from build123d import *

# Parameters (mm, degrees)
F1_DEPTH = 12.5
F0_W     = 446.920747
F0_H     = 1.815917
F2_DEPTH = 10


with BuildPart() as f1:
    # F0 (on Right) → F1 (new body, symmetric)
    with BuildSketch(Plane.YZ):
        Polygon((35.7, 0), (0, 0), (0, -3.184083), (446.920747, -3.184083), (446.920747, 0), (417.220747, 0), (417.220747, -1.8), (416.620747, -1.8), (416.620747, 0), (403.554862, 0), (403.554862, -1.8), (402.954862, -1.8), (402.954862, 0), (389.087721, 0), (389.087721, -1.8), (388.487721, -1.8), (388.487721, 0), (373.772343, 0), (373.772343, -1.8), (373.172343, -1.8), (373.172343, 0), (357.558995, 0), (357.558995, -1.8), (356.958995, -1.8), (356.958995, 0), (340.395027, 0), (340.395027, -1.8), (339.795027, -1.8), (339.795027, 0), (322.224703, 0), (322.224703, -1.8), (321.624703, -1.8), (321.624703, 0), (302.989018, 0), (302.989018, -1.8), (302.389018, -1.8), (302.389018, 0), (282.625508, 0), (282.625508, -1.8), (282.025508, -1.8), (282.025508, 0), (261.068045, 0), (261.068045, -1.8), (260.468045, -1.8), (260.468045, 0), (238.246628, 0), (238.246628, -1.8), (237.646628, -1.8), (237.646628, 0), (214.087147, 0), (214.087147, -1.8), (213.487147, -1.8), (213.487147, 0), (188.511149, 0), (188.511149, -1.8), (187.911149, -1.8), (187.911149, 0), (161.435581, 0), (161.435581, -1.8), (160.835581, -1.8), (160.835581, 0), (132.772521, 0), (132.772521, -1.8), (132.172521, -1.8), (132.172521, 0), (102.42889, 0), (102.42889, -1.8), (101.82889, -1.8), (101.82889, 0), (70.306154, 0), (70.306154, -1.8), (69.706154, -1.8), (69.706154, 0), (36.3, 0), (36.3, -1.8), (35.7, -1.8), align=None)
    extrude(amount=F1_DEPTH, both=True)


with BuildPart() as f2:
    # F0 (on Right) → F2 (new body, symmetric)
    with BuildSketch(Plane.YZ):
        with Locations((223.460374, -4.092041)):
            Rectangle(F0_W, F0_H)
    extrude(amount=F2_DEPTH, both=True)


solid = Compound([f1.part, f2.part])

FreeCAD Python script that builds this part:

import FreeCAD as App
import Part
import Sketcher

V = App.Vector
Q = App.Units.Quantity


def add_polygon(sketch, points):
    """Adds a closed chain of lines whose ends are joined by coincident constraints."""
    first, n = sketch.GeometryCount, len(points)
    for a, b in zip(points, points[1:] + points[:1]):
        sketch.addGeometry(Part.LineSegment(App.Vector(*a, 0), App.Vector(*b, 0)), False)
    for i in range(n):
        sketch.addConstraint(Sketcher.Constraint("Coincident", first + i, 2, first + (i + 1) % n, 1))

doc = App.newDocument("Part")
body = doc.addObject("PartDesign::Body", "Body")

# Sketch on YZ plane
sketch1 = body.newObject("Sketcher::SketchObject", "Sketch")
sketch1.AttachmentSupport = (doc.getObject("YZ_Plane"), [""])
sketch1.MapMode = "FlatFace"
add_polygon(sketch1, [(35.7, 0), (0, 0), (0, -3.2), (446.9, -3.2), (446.9, 0), (417.2, 0), (417.2, -1.8), (416.6, -1.8), (416.6, 0), (403.6, 0), (403.6, -1.8), (403, -1.8), (403, 0), (389.1, 0), (389.1, -1.8), (388.5, -1.8), (388.5, 0), (373.8, 0), (373.8, -1.8), (373.2, -1.8), (373.2, 0), (357.6, 0), (357.6, -1.8), (357, -1.8), (357, 0), (340.4, 0), (340.4, -1.8), (339.8, -1.8), (339.8, 0), (322.2, 0), (322.2, -1.8), (321.6, -1.8), (321.6, 0), (303, 0), (303, -1.8), (302.4, -1.8), (302.4, 0), (282.6, 0), (282.6, -1.8), (282, -1.8), (282, 0), (261.1, 0), (261.1, -1.8), (260.5, -1.8), (260.5, 0), (238.2, 0), (238.2, -1.8), (237.6, -1.8), (237.6, 0), (214.1, 0), (214.1, -1.8), (213.5, -1.8), (213.5, 0), (188.5, 0), (188.5, -1.8), (187.9, -1.8), (187.9, 0), (161.4, 0), (161.4, -1.8), (160.8, -1.8), (160.8, 0), (132.8, 0), (132.8, -1.8), (132.2, -1.8), (132.2, 0), (102.4, 0), (102.4, -1.8), (101.8, -1.8), (101.8, 0), (70.3, 0), (70.3, -1.8), (69.7, -1.8), (69.7, 0), (36.3, 0), (36.3, -1.8), (35.7, -1.8)])  # lines 0-75
sketch1.addConstraint([
    Sketcher.Constraint("Horizontal", 0),
    Sketcher.Constraint("Vertical", 1),
    Sketcher.Constraint("Horizontal", 2),
    Sketcher.Constraint("Vertical", 3),
    Sketcher.Constraint("Horizontal", 4),
    Sketcher.Constraint("Vertical", 5),
    Sketcher.Constraint("Horizontal", 6),
    Sketcher.Constraint("Vertical", 7),
    Sketcher.Constraint("Horizontal", 8),
    Sketcher.Constraint("Vertical", 9),
    Sketcher.Constraint("Horizontal", 10),
    Sketcher.Constraint("Vertical", 11),
    Sketcher.Constraint("Horizontal", 12),
    Sketcher.Constraint("Vertical", 13),
    Sketcher.Constraint("Horizontal", 14),
    Sketcher.Constraint("Vertical", 15),
    Sketcher.Constraint("Horizontal", 16),
    Sketcher.Constraint("Vertical", 17),
    Sketcher.Constraint("Horizontal", 18),
    Sketcher.Constraint("Vertical", 19),
    Sketcher.Constraint("Horizontal", 20),
    Sketcher.Constraint("Vertical", 21),
    Sketcher.Constraint("Horizontal", 22),
    Sketcher.Constraint("Vertical", 23),
    Sketcher.Constraint("Horizontal", 24),
    Sketcher.Constraint("Vertical", 25),
    Sketcher.Constraint("Horizontal", 26),
    Sketcher.Constraint("Vertical", 27),
    Sketcher.Constraint("Horizontal", 28),
    Sketcher.Constraint("Vertical", 29),
    Sketcher.Constraint("Horizontal", 30),
    Sketcher.Constraint("Vertical", 31),
    Sketcher.Constraint("Horizontal", 32),
    Sketcher.Constraint("Vertical", 33),
    Sketcher.Constraint("Horizontal", 34),
    Sketcher.Constraint("Vertical", 35),
    Sketcher.Constraint("Horizontal", 36),
    Sketcher.Constraint("Vertical", 37),
    Sketcher.Constraint("Horizontal", 38),
    Sketcher.Constraint("Vertical", 39),
    Sketcher.Constraint("Horizontal", 40),
    Sketcher.Constraint("Vertical", 41),
    Sketcher.Constraint("Horizontal", 42),
    Sketcher.Constraint("Vertical", 43),
    Sketcher.Constraint("Horizontal", 44),
    Sketcher.Constraint("Vertical", 45),
    Sketcher.Constraint("Horizontal", 46),
    Sketcher.Constraint("Vertical", 47),
    Sketcher.Constraint("Horizontal", 48),
    Sketcher.Constraint("Vertical", 49),
    Sketcher.Constraint("Horizontal", 50),
    Sketcher.Constraint("Vertical", 51),
    Sketcher.Constraint("Horizontal", 52),
    Sketcher.Constraint("Vertical", 53),
    Sketcher.Constraint("Horizontal", 54),
    Sketcher.Constraint("Vertical", 55),
    Sketcher.Constraint("Horizontal", 56),
    Sketcher.Constraint("Vertical", 57),
    Sketcher.Constraint("Horizontal", 58),
    Sketcher.Constraint("Vertical", 59),
    Sketcher.Constraint("Horizontal", 60),
    Sketcher.Constraint("Vertical", 61),
    Sketcher.Constraint("Horizontal", 62),
    Sketcher.Constraint("Vertical", 63),
    Sketcher.Constraint("Horizontal", 64),
    Sketcher.Constraint("Vertical", 65),
    Sketcher.Constraint("Horizontal", 66),
    Sketcher.Constraint("Vertical", 67),
    Sketcher.Constraint("Horizontal", 68),
    Sketcher.Constraint("Vertical", 69),
    Sketcher.Constraint("Horizontal", 70),
    Sketcher.Constraint("Vertical", 71),
    Sketcher.Constraint("Horizontal", 72),
    Sketcher.Constraint("Vertical", 73),
    Sketcher.Constraint("Horizontal", 74),
    Sketcher.Constraint("Vertical", 75),
    Sketcher.Constraint("Coincident", 0, 2, -1, 1),
    Sketcher.Constraint("PointOnObject", 3, 2, -1),
    Sketcher.Constraint("PointOnObject", 7, 2, -1),
    Sketcher.Constraint("PointOnObject", 11, 2, -1),
    Sketcher.Constraint("PointOnObject", 15, 2, -1),
    Sketcher.Constraint("PointOnObject", 19, 2, -1),
    Sketcher.Constraint("PointOnObject", 23, 2, -1),
    Sketcher.Constraint("PointOnObject", 27, 2, -1),
    Sketcher.Constraint("PointOnObject", 31, 2, -1),
    Sketcher.Constraint("PointOnObject", 35, 2, -1),
    Sketcher.Constraint("PointOnObject", 39, 2, -1),
    Sketcher.Constraint("PointOnObject", 43, 2, -1),
    Sketcher.Constraint("PointOnObject", 47, 2, -1),
    Sketcher.Constraint("PointOnObject", 51, 2, -1),
    Sketcher.Constraint("PointOnObject", 55, 2, -1),
    Sketcher.Constraint("PointOnObject", 59, 2, -1),
    Sketcher.Constraint("PointOnObject", 63, 2, -1),
    Sketcher.Constraint("PointOnObject", 67, 2, -1),
    Sketcher.Constraint("PointOnObject", 71, 2, -1),
    Sketcher.Constraint("Horizontal", 6, 2, 9, 2),
    Sketcher.Constraint("Horizontal", 10, 2, 13, 2),
    Sketcher.Constraint("Horizontal", 14, 2, 17, 2),
    Sketcher.Constraint("Horizontal", 18, 2, 21, 2),
    Sketcher.Constraint("Horizontal", 22, 2, 25, 2),
    Sketcher.Constraint("Horizontal", 26, 2, 29, 2),
    Sketcher.Constraint("Horizontal", 30, 2, 33, 2),
    Sketcher.Constraint("Horizontal", 34, 2, 37, 2),
    Sketcher.Constraint("Horizontal", 38, 2, 41, 2),
    Sketcher.Constraint("Horizontal", 42, 2, 45, 2),
    Sketcher.Constraint("Horizontal", 46, 2, 49, 2),
    Sketcher.Constraint("Horizontal", 50, 2, 53, 2),
    Sketcher.Constraint("Horizontal", 54, 2, 57, 2),
    Sketcher.Constraint("Horizontal", 58, 2, 61, 2),
    Sketcher.Constraint("Horizontal", 62, 2, 65, 2),
    Sketcher.Constraint("Horizontal", 66, 2, 69, 2),
    Sketcher.Constraint("Horizontal", 70, 2, 73, 2),
    Sketcher.Constraint("Equal", 6, 10),
    Sketcher.Constraint("Equal", 10, 14),
    Sketcher.Constraint("Equal", 14, 18),
    Sketcher.Constraint("Equal", 18, 22),
    Sketcher.Constraint("Equal", 22, 26),
    Sketcher.Constraint("Equal", 26, 30),
    Sketcher.Constraint("Equal", 30, 34),
    Sketcher.Constraint("Equal", 34, 38),
    Sketcher.Constraint("Equal", 38, 42),
    Sketcher.Constraint("Equal", 42, 46),
    Sketcher.Constraint("Equal", 46, 50),
    Sketcher.Constraint("Equal", 50, 54),
    Sketcher.Constraint("Equal", 54, 58),
    Sketcher.Constraint("Equal", 58, 62),
    Sketcher.Constraint("Equal", 62, 66),
    Sketcher.Constraint("Equal", 66, 70),
    Sketcher.Constraint("Equal", 70, 74),
    Sketcher.Constraint("DistanceX", 0, 2, 0, 1, Q("35.7 mm")),
    Sketcher.Constraint("DistanceX", 4, 2, 4, 1, Q("29.7 mm")),
    Sketcher.Constraint("DistanceX", 6, 2, 6, 1, Q("0.6 mm")),
    Sketcher.Constraint("DistanceY", 5, 2, 5, 1, Q("1.8 mm")),
    Sketcher.Constraint("DistanceX", 52, 2, 52, 1, Q("24.975998 mm")),
    Sketcher.Constraint("DistanceX", 12, 2, 12, 1, Q("13.867141 mm")),
    Sketcher.Constraint("DistanceX", 16, 2, 16, 1, Q("14.715378 mm")),
    Sketcher.Constraint("DistanceX", 20, 2, 20, 1, Q("15.613348 mm")),
    Sketcher.Constraint("DistanceX", 36, 2, 36, 1, Q("19.76351 mm")),
    Sketcher.Constraint("DistanceX", 48, 2, 48, 1, Q("23.559481 mm")),
    Sketcher.Constraint("DistanceX", 60, 2, 60, 1, Q("28.06306 mm")),
    Sketcher.Constraint("DistanceX", 64, 2, 64, 1, Q("29.743631 mm")),
    Sketcher.Constraint("DistanceX", 2, 1, 2, 2, Q("446.920747 mm")),
    Sketcher.Constraint("DistanceX", 8, 2, 8, 1, Q("13.065885 mm")),
    Sketcher.Constraint("DistanceX", 24, 2, 24, 1, Q("16.563968 mm")),
    Sketcher.Constraint("DistanceX", 28, 2, 28, 1, Q("17.570324 mm")),
    Sketcher.Constraint("DistanceX", 32, 2, 32, 1, Q("18.635685 mm")),
    Sketcher.Constraint("DistanceX", 40, 2, 40, 1, Q("20.957463 mm")),
    Sketcher.Constraint("DistanceX", 44, 2, 44, 1, Q("22.221417 mm")),
    Sketcher.Constraint("DistanceX", 56, 2, 56, 1, Q("26.475568 mm")),
    Sketcher.Constraint("DistanceX", 68, 2, 68, 1, Q("31.522736 mm")),
    Sketcher.Constraint("DistanceY", 1, 2, 1, 1, Q("3.184083 mm")),
])
pad1 = body.newObject("PartDesign::Pad", "Pad")
pad1.Profile = sketch1
pad1.Length = 25
pad1.Midplane = True
body2 = doc.addObject("PartDesign::Body", "Body001")

# Sketch on YZ plane
sketch2 = body2.newObject("Sketcher::SketchObject", "Sketch001")
sketch2.AttachmentSupport = (doc.getObject("YZ_Plane001"), [""])
sketch2.MapMode = "FlatFace"
add_polygon(sketch2, [(0, -3.2), (0, -5), (446.9, -5), (446.9, -3.2)])  # lines 0-3
sketch2.addConstraint([
    Sketcher.Constraint("Vertical", 0),
    Sketcher.Constraint("Horizontal", 1),
    Sketcher.Constraint("Vertical", 2),
    Sketcher.Constraint("Horizontal", 3),
    Sketcher.Constraint("PointOnObject", 0, 2, -2),
    Sketcher.Constraint("DistanceY", 0, 2, -1, 1, Q("5 mm")),
    Sketcher.Constraint("DistanceX", 1, 1, 1, 2, Q("446.920747 mm")),
    Sketcher.Constraint("DistanceY", 0, 2, 0, 1, Q("1.815917 mm")),
])
pad2 = body2.newObject("PartDesign::Pad", "Pad001")
pad2.Profile = sketch2
pad2.Length = 20
pad2.Midplane = True

doc.recompute()
